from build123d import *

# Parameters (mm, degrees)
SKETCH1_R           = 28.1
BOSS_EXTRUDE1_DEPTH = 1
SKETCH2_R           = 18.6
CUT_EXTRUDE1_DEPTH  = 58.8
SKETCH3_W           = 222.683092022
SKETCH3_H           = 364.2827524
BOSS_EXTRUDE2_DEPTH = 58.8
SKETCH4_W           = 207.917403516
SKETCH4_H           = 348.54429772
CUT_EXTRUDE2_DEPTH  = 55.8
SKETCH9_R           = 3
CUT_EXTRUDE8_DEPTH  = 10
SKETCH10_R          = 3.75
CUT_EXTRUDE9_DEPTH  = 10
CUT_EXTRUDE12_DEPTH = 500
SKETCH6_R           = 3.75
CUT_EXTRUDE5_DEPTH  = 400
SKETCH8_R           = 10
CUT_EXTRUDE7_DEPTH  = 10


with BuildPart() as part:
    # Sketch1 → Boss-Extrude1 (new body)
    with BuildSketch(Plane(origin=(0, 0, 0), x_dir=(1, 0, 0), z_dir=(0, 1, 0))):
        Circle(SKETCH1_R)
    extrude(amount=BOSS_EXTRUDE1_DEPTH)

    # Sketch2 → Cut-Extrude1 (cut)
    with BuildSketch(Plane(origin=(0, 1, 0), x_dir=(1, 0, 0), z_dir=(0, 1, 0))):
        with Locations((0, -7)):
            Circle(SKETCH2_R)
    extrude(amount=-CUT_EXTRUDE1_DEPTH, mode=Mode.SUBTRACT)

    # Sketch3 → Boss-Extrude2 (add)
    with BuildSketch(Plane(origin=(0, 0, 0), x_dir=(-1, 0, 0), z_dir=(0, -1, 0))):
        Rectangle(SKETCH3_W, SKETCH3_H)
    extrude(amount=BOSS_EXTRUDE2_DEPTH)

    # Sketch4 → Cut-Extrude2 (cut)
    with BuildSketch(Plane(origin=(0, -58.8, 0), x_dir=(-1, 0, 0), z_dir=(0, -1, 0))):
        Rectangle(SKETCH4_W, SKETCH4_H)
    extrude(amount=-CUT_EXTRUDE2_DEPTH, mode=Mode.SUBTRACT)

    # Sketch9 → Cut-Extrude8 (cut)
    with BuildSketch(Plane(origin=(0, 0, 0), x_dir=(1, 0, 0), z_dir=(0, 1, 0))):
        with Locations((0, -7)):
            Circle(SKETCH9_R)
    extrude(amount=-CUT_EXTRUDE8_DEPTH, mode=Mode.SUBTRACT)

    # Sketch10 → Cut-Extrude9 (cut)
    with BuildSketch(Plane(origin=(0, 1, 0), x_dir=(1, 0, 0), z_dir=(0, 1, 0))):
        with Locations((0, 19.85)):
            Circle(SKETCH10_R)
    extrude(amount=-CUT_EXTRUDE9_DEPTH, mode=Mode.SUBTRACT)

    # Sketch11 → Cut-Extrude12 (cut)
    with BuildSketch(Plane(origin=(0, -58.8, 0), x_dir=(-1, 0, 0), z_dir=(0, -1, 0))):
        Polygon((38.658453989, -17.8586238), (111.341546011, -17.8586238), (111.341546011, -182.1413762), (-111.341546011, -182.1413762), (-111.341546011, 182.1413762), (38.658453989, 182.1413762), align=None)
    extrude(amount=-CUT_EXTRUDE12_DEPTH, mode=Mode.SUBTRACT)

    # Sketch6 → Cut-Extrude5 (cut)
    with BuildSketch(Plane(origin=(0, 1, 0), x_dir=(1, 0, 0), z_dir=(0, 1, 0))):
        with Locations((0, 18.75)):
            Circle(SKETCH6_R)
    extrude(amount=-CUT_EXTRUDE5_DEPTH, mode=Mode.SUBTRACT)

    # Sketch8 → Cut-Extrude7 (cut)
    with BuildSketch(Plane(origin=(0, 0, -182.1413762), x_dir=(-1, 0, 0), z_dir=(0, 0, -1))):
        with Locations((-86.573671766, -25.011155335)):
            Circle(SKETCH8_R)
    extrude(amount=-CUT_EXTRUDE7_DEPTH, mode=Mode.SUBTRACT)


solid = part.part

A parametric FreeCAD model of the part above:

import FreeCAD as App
import Part
import Sketcher
from FreeCAD import Vector
Q = App.Units.Quantity


def add_polygon(sketch, points):
    """Adds a closed chain of lines whose ends are joined by coincident constraints."""
    first, n = sketch.GeometryCount, len(points)
    for a, b in zip(points, points[1:] + points[:1]):
        sketch.addGeometry(Part.LineSegment(App.Vector(*a, 0), App.Vector(*b, 0)), False)
    for i in range(n):
        sketch.addConstraint(Sketcher.Constraint("Coincident", first + i, 2, first + (i + 1) % n, 1))

doc = App.newDocument("Part")
body = doc.addObject("PartDesign::Body", "Body")

# Sketch on XZ plane
sketch1 = doc.addObject("Sketcher::SketchObject", "Sketch")
body.addObject(sketch1)
sketch1.AttachmentSupport = (doc.XZ_Plane, [""])
sketch1.MapMode = "FlatFace"
sketch1.addGeometry(Part.Circle(Vector(0, 0, 0), Vector(0, 0, 1), 28), False)
sketch1.addConstraint(Sketcher.Constraint("Coincident", 0, 3, -1, 1))
sketch1.addConstraint(Sketcher.Constraint("Diameter", 0, Q("56.2 mm")))
pad1 = doc.addObject("PartDesign::Pad", "Pad")
body.addObject(pad1)
pad1.Profile = sketch1
pad1.Length = 1
pad1.Reversed = True

# Sketch on XZ plane
sketch2 = doc.addObject("Sketcher::SketchObject", "Sketch001")
body.addObject(sketch2)
sketch2.AttachmentSupport = (doc.XZ_Plane, [""])
sketch2.MapMode = "FlatFace"
sketch2.AttachmentOffset = App.Placement(Vector(0, 0, -1), App.Rotation())
sketch2.addGeometry(Part.Circle(Vector(0, 7, 0), Vector(0, 0, 1), 19), False)
sketch2.addConstraint(Sketcher.Constraint("PointOnObject", 0, 3, -2))
sketch2.addConstraint(Sketcher.Constraint("Diameter", 0, Q("37.2 mm")))
sketch2.addConstraint(Sketcher.Constraint("DistanceY", -1, 1, 0, 3, Q("7 mm")))
pocket1 = doc.addObject("PartDesign::Pocket", "Pocket")
body.addObject(pocket1)
pocket1.Profile = sketch2
pocket1.Length = 58.8
pocket1.Reversed = True

# Sketch on XZ plane
sketch3 = doc.addObject("Sketcher::SketchObject", "Sketch002")
body.addObject(sketch3)
sketch3.AttachmentSupport = (doc.XZ_Plane, [""])
sketch3.MapMode = "FlatFace"
add_polygon(sketch3, [(111, -182), (111, 182), (-111, 182), (-111, -182)])  # lines 0-3
sketch3.addConstraint(Sketcher.Constraint("Vertical", 0))
sketch3.addConstraint(Sketcher.Constraint("Horizontal", 1))
sketch3.addConstraint(Sketcher.Constraint("Vertical", 2))
sketch3.addConstraint(Sketcher.Constraint("Horizontal", 3))
sketch3.addConstraint(Sketcher.Constraint("Symmetric", 0, 2, 2, 2, -1, 1))
sketch3.addConstraint(Sketcher.Constraint("DistanceX", 1, 2, 1, 1, Q("222.683092 mm")))
sketch3.addConstraint(Sketcher.Constraint("DistanceY", 0, 1, 0, 2, Q("364.282752 mm")))
pad2 = doc.addObject("PartDesign::Pad", "Pad001")
body.addObject(pad2)
pad2.Profile = sketch3
pad2.Length = 58.8

# Sketch on XZ plane
sketch4 = doc.addObject("Sketcher::SketchObject", "Sketch003")
body.addObject(sketch4)
sketch4.AttachmentSupport = (doc.XZ_Plane, [""])
sketch4.MapMode = "FlatFace"
sketch4.AttachmentOffset = App.Placement(Vector(0, 0, 58.8), App.Rotation())
add_polygon(sketch4, [(104, -174), (104, 174), (-104, 174), (-104, -174)])  # lines 0-3
sketch4.addConstraint(Sketcher.Constraint("Vertical", 0))
sketch4.addConstraint(Sketcher.Constraint("Horizontal", 1))
sketch4.addConstraint(Sketcher.Constraint("Vertical", 2))
sketch4.addConstraint(Sketcher.Constraint("Horizontal", 3))
sketch4.addConstraint(Sketcher.Constraint("Symmetric", 0, 2, 2, 2, -1, 1))
sketch4.addConstraint(Sketcher.Constraint("DistanceX", -1, 1, 0, 2, Q("103.958702 mm")))
sketch4.addConstraint(Sketcher.Constraint("DistanceY", 0, 1, 0, 2, Q("348.544298 mm")))
pocket2 = doc.addObject("PartDesign::Pocket", "Pocket001")
body.addObject(pocket2)
pocket2.Profile = sketch4
pocket2.Length = 55.8

# Sketch on XZ plane
sketch5 = doc.addObject("Sketcher::SketchObject", "Sketch004")
body.addObject(sketch5)
sketch5.AttachmentSupport = (doc.XZ_Plane, [""])
sketch5.MapMode = "FlatFace"
sketch5.addGeometry(Part.Circle(Vector(0, 7, 0), Vector(0, 0, 1), 3), False)
sketch5.addConstraint(Sketcher.Constraint("PointOnObject", 0, 3, -2))
sketch5.addConstraint(Sketcher.Constraint("Diameter", 0, Q("6 mm")))
sketch5.addConstraint(Sketcher.Constraint("DistanceY", -1, 1, 0, 3, Q("7 mm")))
pocket3 = doc.addObject("PartDesign::Pocket", "Pocket002")
body.addObject(pocket3)
pocket3.Profile = sketch5
pocket3.Length = 10
pocket3.Reversed = True

# Sketch on XZ plane
sketch6 = doc.addObject("Sketcher::SketchObject", "Sketch005")
body.addObject(sketch6)
sketch6.AttachmentSupport = (doc.XZ_Plane, [""])
sketch6.MapMode = "FlatFace"
sketch6.AttachmentOffset = App.Placement(Vector(0, 0, -1), App.Rotation())
sketch6.addGeometry(Part.Circle(Vector(0, -19.9, 0), Vector(0, 0, 1), 3.8), False)
sketch6.addConstraint(Sketcher.Constraint("PointOnObject", 0, 3, -2))
sketch6.addConstraint(Sketcher.Constraint("Diameter", 0, Q("7.5 mm")))
sketch6.addConstraint(Sketcher.Constraint("DistanceY", 0, 3, -1, 1, Q("19.85 mm")))
pocket4 = doc.addObject("PartDesign::Pocket", "Pocket003")
body.addObject(pocket4)
pocket4.Profile = sketch6
pocket4.Length = 10
pocket4.Reversed = True

# Sketch on XZ plane
sketch7 = doc.addObject("Sketcher::SketchObject", "Sketch006")
body.addObject(sketch7)
sketch7.AttachmentSupport = (doc.XZ_Plane, [""])
sketch7.MapMode = "FlatFace"
sketch7.AttachmentOffset = App.Placement(Vector(0, 0, 58.8), App.Rotation())
add_polygon(sketch7, [(-111, 18), (-39, 18), (-39, -182), (111, -182), (111, 182), (-111, 182)])  # lines 0-5
sketch7.addConstraint(Sketcher.Constraint("Horizontal", 0))
sketch7.addConstraint(Sketcher.Constraint("Vertical", 1))
sketch7.addConstraint(Sketcher.Constraint("Horizontal", 2))
sketch7.addConstraint(Sketcher.Constraint("Vertical", 3))
sketch7.addConstraint(Sketcher.Constraint("Horizontal", 4))
sketch7.addConstraint(Sketcher.Constraint("Vertical", 5))
sketch7.addConstraint(Sketcher.Constraint("Symmetric", 2, 2, 4, 2, -1, 1))
sketch7.addConstraint(Sketcher.Constraint("DistanceX", 2, 1, 2, 2, Q("150 mm")))
sketch7.addConstraint(Sketcher.Constraint("DistanceY", 1, 2, 1, 1, Q("200 mm")))
sketch7.addConstraint(Sketcher.Constraint("DistanceX", 0, 1, 0, 2, Q("72.683092 mm")))
sketch7.addConstraint(Sketcher.Constraint("DistanceY", 3, 1, 3, 2, Q("364.282752 mm")))
pocket5 = doc.addObject("PartDesign::Pocket", "Pocket004")
body.addObject(pocket5)
pocket5.Profile = sketch7
pocket5.Length = 500

# Sketch on XZ plane
sketch8 = doc.addObject("Sketcher::SketchObject", "Sketch007")
body.addObject(sketch8)
sketch8.AttachmentSupport = (doc.XZ_Plane, [""])
sketch8.MapMode = "FlatFace"
sketch8.AttachmentOffset = App.Placement(Vector(0, 0, -1), App.Rotation())
sketch8.addGeometry(Part.Circle(Vector(0, -18.8, 0), Vector(0, 0, 1), 3.8), False)
sketch8.addConstraint(Sketcher.Constraint("PointOnObject", 0, 3, -2))
sketch8.addConstraint(Sketcher.Constraint("Diameter", 0, Q("7.5 mm")))
sketch8.addConstraint(Sketcher.Constraint("DistanceY", 0, 3, -1, 1, Q("18.75 mm")))
pocket6 = doc.addObject("PartDesign::Pocket", "Pocket005")
body.addObject(pocket6)
pocket6.Profile = sketch8
pocket6.Length = 400
pocket6.Reversed = True

# Sketch on XY plane
sketch9 = doc.addObject("Sketcher::SketchObject", "Sketch008")
body.addObject(sketch9)
sketch9.AttachmentSupport = (doc.XY_Plane, [""])
sketch9.MapMode = "FlatFace"
sketch9.AttachmentOffset = App.Placement(Vector(0, 0, -182.141376), App.Rotation())
sketch9.addGeometry(Part.Circle(Vector(87, -25, 0), Vector(0, 0, 1), 10), False)
sketch9.addConstraint(Sketcher.Constraint("Diameter", 0, Q("20 mm")))
sketch9.addConstraint(Sketcher.Constraint("DistanceX", -1, 1, 0, 3, Q("86.573672 mm")))
sketch9.addConstraint(Sketcher.Constraint("DistanceY", 0, 3, -1, 1, Q("25.011155 mm")))
pocket7 = doc.addObject("PartDesign::Pocket", "Pocket006")
body.addObject(pocket7)
pocket7.Profile = sketch9
pocket7.Length = 10
pocket7.Reversed = True

doc.recompute()
